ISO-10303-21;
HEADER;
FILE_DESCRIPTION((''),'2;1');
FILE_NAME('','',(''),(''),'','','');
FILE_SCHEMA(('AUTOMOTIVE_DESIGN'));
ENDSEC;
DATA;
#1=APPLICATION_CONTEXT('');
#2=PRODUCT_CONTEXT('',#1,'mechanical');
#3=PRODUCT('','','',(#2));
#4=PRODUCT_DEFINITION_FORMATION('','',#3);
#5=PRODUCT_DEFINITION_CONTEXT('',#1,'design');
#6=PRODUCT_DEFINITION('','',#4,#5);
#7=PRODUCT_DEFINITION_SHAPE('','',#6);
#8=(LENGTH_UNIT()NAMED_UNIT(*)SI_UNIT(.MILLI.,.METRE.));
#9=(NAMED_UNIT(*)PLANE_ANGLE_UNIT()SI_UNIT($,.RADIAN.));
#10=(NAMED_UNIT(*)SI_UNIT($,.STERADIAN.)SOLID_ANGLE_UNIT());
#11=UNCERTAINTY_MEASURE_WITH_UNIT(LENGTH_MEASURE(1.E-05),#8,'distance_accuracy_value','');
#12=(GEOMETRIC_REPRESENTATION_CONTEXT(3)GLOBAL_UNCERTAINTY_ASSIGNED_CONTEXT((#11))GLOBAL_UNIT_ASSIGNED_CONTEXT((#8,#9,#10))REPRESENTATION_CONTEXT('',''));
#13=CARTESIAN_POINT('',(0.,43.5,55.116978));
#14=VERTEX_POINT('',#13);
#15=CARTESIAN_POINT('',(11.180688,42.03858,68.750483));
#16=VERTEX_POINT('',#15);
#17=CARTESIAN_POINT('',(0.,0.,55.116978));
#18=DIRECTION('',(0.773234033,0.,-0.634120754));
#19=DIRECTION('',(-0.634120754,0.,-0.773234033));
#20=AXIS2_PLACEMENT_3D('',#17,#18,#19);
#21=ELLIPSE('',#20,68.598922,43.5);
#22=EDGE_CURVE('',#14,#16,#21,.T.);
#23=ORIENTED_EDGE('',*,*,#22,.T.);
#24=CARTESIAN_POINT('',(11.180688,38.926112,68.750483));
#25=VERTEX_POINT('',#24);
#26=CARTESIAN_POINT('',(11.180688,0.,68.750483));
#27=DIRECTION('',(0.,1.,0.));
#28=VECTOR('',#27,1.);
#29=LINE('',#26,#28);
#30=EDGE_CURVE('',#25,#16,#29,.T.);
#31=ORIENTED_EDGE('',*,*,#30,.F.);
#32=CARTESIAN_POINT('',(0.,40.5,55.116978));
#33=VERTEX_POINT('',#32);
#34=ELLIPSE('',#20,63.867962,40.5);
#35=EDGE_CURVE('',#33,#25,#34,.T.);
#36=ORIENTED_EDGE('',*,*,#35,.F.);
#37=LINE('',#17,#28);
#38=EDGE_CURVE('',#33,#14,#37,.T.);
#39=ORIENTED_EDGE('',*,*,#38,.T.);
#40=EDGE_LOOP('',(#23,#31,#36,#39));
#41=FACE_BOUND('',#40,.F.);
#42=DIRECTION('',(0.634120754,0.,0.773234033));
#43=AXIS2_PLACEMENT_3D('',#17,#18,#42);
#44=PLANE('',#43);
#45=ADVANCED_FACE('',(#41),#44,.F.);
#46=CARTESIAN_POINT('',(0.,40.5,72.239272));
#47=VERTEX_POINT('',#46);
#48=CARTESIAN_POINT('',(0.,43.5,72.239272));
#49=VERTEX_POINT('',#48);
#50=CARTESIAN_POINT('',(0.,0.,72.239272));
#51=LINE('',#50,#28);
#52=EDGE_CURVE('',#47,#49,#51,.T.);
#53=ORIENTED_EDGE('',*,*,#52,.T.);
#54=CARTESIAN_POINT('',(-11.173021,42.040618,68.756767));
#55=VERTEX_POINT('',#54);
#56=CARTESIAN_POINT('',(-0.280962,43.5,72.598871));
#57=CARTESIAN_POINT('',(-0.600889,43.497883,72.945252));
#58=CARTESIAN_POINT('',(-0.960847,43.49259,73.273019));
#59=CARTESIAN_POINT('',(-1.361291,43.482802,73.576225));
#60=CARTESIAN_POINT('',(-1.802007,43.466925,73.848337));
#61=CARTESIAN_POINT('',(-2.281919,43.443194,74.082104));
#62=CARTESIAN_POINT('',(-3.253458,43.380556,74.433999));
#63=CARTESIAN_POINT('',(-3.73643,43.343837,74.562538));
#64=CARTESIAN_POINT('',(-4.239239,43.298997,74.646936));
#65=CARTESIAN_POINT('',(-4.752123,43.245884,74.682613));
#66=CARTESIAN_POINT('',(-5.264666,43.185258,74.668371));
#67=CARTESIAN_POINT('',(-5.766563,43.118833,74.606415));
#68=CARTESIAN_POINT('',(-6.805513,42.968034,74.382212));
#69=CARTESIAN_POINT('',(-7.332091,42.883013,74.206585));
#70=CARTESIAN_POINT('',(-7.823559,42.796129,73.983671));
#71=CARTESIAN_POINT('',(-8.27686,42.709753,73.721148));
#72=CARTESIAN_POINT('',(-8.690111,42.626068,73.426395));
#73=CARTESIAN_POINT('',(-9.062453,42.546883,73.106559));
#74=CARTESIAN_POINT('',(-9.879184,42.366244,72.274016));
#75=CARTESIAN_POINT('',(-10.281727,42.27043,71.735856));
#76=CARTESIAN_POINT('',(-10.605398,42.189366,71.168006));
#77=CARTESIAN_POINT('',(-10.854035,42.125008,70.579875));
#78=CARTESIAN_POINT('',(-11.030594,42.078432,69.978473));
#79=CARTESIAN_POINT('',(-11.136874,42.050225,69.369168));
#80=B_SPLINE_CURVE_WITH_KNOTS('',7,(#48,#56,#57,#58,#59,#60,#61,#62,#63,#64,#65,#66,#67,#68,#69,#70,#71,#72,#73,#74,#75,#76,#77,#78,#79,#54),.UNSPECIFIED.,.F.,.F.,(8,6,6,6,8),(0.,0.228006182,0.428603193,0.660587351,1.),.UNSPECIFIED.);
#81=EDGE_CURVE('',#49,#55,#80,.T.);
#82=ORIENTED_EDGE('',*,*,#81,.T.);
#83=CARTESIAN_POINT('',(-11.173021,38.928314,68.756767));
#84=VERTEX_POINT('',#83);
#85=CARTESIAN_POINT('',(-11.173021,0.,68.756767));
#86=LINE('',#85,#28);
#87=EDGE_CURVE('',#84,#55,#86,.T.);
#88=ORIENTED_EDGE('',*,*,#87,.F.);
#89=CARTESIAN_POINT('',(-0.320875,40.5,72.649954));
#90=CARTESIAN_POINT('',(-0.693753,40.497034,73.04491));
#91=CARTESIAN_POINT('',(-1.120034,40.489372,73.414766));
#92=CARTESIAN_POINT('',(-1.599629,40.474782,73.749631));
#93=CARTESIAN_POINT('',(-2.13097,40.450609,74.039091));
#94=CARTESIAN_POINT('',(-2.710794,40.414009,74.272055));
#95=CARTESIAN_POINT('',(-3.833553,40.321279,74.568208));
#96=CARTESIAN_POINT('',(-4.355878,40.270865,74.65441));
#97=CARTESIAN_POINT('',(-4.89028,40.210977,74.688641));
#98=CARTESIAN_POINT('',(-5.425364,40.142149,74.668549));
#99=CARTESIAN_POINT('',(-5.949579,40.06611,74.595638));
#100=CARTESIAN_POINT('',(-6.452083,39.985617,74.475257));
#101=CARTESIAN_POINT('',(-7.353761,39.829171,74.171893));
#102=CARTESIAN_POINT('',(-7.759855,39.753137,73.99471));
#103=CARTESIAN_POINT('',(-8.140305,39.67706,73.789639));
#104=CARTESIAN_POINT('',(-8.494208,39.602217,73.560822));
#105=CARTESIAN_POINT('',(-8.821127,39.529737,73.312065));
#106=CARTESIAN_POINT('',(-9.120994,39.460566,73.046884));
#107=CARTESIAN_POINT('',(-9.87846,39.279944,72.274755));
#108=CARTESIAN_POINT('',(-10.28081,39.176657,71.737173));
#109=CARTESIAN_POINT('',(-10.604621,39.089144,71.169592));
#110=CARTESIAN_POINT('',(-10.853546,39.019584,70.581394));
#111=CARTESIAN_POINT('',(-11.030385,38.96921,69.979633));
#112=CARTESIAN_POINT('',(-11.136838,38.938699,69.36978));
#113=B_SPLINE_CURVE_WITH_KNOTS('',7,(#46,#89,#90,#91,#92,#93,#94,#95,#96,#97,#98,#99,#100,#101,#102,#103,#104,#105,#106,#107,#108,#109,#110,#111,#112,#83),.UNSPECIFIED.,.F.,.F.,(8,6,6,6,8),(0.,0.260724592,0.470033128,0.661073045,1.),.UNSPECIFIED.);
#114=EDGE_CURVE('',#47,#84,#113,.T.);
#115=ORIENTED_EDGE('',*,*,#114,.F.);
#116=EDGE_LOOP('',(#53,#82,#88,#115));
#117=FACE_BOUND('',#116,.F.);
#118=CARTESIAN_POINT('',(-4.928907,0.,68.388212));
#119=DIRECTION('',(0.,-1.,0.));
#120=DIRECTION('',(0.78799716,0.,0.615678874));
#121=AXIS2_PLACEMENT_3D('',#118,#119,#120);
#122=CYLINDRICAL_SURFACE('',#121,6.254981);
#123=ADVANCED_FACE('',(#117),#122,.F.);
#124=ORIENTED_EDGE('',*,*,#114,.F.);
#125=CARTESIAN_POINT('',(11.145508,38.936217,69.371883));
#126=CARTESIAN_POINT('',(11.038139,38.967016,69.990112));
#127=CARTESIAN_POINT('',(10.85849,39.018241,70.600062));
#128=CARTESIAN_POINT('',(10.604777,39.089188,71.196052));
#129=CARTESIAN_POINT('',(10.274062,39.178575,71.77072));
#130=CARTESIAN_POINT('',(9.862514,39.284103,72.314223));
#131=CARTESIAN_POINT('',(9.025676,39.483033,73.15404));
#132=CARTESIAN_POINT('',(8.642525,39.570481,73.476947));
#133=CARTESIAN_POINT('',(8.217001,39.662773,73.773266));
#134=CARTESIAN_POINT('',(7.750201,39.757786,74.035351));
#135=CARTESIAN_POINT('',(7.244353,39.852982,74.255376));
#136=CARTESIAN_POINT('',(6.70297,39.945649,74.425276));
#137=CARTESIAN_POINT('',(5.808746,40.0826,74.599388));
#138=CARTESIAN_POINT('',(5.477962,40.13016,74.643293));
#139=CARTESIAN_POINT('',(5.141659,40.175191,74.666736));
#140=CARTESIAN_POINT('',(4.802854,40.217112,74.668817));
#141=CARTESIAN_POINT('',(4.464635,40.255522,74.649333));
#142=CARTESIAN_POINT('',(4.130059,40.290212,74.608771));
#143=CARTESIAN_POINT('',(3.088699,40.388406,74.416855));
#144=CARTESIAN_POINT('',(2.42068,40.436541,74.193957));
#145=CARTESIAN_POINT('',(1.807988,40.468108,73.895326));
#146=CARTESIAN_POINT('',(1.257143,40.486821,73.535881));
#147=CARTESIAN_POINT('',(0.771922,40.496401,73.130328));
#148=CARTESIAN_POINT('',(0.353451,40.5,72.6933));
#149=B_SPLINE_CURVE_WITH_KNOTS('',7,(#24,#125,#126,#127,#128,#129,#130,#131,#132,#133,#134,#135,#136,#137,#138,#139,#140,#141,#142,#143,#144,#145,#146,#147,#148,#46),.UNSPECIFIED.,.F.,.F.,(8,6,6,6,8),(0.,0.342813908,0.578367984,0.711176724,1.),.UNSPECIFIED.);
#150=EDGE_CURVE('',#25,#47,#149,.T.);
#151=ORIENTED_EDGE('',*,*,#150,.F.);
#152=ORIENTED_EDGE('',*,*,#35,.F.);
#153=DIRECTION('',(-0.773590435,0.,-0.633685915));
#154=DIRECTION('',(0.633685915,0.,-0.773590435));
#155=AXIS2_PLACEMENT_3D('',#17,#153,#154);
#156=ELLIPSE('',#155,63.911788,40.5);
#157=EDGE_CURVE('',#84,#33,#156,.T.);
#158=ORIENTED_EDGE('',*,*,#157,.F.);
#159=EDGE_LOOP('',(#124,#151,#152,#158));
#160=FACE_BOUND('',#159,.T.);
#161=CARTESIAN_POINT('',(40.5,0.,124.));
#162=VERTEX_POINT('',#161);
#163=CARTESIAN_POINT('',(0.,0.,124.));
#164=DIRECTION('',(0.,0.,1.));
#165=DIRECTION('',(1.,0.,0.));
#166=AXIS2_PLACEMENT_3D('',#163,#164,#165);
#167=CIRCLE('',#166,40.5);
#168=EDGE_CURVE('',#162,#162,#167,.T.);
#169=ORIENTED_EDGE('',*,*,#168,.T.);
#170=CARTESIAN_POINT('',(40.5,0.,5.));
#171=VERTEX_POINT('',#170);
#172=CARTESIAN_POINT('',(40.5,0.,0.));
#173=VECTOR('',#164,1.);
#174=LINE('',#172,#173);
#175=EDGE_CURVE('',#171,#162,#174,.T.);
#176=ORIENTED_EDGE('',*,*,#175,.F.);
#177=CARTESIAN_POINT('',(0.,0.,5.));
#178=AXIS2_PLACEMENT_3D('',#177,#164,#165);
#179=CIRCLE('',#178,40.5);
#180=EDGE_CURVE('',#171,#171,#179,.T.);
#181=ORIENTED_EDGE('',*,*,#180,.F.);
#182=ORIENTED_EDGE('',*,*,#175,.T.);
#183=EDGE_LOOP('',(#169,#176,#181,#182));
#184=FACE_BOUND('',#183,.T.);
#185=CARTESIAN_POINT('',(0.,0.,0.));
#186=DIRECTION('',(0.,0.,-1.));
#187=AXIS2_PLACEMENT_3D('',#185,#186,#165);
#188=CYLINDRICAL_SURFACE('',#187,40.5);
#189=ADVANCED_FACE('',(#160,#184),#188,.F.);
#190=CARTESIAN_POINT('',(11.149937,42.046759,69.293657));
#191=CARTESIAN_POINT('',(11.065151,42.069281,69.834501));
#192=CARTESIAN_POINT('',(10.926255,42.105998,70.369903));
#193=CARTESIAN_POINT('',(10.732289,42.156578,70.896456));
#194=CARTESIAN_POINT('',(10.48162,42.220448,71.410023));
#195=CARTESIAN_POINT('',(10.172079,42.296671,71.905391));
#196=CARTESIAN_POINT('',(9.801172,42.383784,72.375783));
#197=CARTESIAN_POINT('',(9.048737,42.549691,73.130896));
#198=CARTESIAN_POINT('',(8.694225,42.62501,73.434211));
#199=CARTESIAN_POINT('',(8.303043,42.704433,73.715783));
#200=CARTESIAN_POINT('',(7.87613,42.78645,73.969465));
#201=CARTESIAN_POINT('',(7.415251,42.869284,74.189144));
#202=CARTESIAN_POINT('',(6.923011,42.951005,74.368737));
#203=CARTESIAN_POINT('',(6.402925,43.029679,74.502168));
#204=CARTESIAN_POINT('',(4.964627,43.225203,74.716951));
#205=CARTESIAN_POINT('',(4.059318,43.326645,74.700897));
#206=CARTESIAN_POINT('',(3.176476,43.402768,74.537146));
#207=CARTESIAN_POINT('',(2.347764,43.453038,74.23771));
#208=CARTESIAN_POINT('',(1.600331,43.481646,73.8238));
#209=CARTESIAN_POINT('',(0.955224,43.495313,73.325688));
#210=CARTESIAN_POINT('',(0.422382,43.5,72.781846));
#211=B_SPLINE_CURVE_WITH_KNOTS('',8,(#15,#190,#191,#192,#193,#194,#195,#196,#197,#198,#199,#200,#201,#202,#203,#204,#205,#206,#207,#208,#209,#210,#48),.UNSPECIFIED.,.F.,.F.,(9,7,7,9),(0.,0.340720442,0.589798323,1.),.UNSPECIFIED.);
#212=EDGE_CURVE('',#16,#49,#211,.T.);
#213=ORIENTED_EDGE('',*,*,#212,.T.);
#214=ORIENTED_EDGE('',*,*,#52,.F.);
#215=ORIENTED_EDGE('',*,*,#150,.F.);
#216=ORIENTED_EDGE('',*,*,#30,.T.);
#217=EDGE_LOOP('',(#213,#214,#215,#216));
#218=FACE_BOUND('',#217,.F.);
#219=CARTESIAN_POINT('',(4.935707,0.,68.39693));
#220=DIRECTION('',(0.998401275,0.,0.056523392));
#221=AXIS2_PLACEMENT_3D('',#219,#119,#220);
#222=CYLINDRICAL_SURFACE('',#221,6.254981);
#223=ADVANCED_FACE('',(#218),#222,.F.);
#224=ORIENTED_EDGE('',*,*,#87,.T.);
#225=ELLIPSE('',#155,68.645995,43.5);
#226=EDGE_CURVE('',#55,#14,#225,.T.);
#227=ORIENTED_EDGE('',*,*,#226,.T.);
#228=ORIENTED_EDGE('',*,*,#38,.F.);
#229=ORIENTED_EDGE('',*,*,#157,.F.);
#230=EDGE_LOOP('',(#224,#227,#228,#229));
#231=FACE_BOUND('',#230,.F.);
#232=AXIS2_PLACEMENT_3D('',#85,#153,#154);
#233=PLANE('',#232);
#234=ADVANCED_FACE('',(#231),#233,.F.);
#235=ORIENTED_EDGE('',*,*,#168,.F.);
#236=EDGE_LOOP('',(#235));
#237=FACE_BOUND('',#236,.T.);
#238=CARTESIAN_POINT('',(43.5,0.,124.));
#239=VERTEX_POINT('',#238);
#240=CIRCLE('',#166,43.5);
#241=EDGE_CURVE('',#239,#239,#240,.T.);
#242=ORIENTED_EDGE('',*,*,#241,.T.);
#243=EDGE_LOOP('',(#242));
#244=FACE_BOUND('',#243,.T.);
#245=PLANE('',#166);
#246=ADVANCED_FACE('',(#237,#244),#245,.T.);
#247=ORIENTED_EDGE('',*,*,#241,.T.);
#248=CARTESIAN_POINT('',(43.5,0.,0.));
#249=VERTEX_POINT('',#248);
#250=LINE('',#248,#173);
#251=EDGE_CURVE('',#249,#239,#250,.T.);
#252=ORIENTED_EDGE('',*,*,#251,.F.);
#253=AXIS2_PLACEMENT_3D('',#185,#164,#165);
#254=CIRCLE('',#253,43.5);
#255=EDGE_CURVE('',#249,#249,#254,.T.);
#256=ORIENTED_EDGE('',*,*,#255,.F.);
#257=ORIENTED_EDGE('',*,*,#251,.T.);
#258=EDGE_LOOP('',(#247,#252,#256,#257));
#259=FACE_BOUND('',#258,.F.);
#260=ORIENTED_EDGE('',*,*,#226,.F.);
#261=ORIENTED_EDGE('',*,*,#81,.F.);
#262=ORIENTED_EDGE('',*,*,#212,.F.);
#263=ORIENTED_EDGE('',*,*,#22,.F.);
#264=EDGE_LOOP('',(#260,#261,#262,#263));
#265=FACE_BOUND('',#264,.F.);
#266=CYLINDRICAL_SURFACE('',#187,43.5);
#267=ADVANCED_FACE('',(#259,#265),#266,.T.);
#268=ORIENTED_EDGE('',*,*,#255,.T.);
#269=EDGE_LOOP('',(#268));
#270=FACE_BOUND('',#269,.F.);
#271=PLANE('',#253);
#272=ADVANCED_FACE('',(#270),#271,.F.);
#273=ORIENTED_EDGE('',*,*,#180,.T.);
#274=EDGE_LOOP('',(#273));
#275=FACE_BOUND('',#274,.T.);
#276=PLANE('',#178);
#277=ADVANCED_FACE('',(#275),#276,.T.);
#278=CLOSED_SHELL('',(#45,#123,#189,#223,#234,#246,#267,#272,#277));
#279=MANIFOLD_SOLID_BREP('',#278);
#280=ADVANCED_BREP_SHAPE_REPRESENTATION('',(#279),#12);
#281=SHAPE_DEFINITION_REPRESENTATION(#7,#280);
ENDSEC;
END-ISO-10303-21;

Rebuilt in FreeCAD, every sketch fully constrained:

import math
import FreeCAD as App
import Part
import Sketcher
from FreeCAD import Vector
Q = App.Units.Quantity

doc = App.newDocument("Part")
params = doc.addObject("Spreadsheet::Sheet", "Params")
for row, (alias, value) in enumerate([
    ("sketch1_diameter", "87 mm"),
    ("sketch1_diameter2", "81 mm"),
    ("pad1_length", "124 mm"),
    ("sketch2_diameter", "81 mm"),
    ("pad2_length", "5 mm"),
], start=1):
    params.set(f"A{row}", alias)
    params.set(f"B{row}", "=" + value)
    params.setAlias(f"B{row}", alias)

body = doc.addObject("PartDesign::Body", "Body")

# Sketch on XY plane
sketch1 = doc.addObject("Sketcher::SketchObject", "Sketch")
body.addObject(sketch1)
sketch1.AttachmentSupport = (doc.XY_Plane, [""])
sketch1.MapMode = "FlatFace"
sketch1.addGeometry([
    Part.Circle(Vector(0, 0, 0), Vector(0, 0, 1), 44),
    Part.Circle(Vector(0, 0, 0), Vector(0, 0, 1), 40),
], False)
sketch1.addConstraint([
    Sketcher.Constraint("Coincident", 0, 3, -1, 1),
    Sketcher.Constraint("Coincident", 1, 3, -1, 1),
    Sketcher.Constraint("Diameter", 0, Q("87 mm")),
    Sketcher.Constraint("Diameter", 1, Q("81 mm")),
])
sketch1.setExpression("Constraints[2]", "Params.sketch1_diameter")
sketch1.setExpression("Constraints[3]", "Params.sketch1_diameter2")
pad1 = doc.addObject("PartDesign::Pad", "Pad")
body.addObject(pad1)
pad1.Profile = sketch1
pad1.setExpression("Length", "Params.pad1_length")

# Sketch on XY plane
sketch2 = doc.addObject("Sketcher::SketchObject", "Sketch001")
body.addObject(sketch2)
sketch2.AttachmentSupport = (doc.XY_Plane, [""])
sketch2.MapMode = "FlatFace"
sketch2.addGeometry(Part.Circle(Vector(0, 0, 0), Vector(0, 0, 1), 40), False)
sketch2.addConstraint([
    Sketcher.Constraint("Coincident", 0, 3, -1, 1),
    Sketcher.Constraint("Diameter", 0, Q("81 mm")),
])
sketch2.setExpression("Constraints[1]", "Params.sketch2_diameter")
pad2 = doc.addObject("PartDesign::Pad", "Pad001")
body.addObject(pad2)
pad2.Profile = sketch2
pad2.setExpression("Length", "Params.pad2_length")

# Sketch on XZ plane
sketch3 = doc.addObject("Sketcher::SketchObject", "Sketch002")
body.addObject(sketch3)
sketch3.AttachmentSupport = (doc.XZ_Plane, [""])
sketch3.MapMode = "FlatFace"
sketch3.addGeometry([
    Part.LineSegment(Vector(-11, 69, 0), Vector(0, 55, 0)),
    Part.LineSegment(Vector(0, 55, 0), Vector(11, 69, 0)),
    Part.ArcOfCircle(Part.Circle(Vector(5, 68, 0), Vector(0, 0, 1), 6), math.radians(3), math.radians(142)),
    Part.ArcOfCircle(Part.Circle(Vector(-5, 68, 0), Vector(0, 0, 1), 6), math.radians(38), math.radians(177)),
], False)
sketch3.addConstraint([
    Sketcher.Constraint("Coincident", 0, 2, 1, 1),
    Sketcher.Constraint("Coincident", 1, 2, 2, 1),
    Sketcher.Constraint("Coincident", 2, 2, 3, 1),
    Sketcher.Constraint("Coincident", 3, 2, 0, 1),
    Sketcher.Constraint("Equal", 2, 3),
    Sketcher.Constraint("PointOnObject", 0, 2, -2),
    Sketcher.Constraint("PointOnObject", 2, 2, -2),
    Sketcher.Constraint("Equal", 0, 1),
    Sketcher.Constraint("Radius", 2, Q("6.254981 mm")),
    Sketcher.Constraint("DistanceY", -1, 1, 2, 3, Q("68.39693 mm")),
    Sketcher.Constraint("DistanceY", -1, 1, 0, 2, Q("55.116978 mm")),
    Sketcher.Constraint("DistanceY", -1, 1, 2, 2, Q("72.239272 mm")),
    Sketcher.Constraint("DistanceX", 3, 2, -1, 1, Q("11.173021 mm")),
    Sketcher.Constraint("DistanceX", 2, 3, 1, 2, Q("6.244981 mm")),
])
pocket1 = doc.addObject("PartDesign::Pocket", "Pocket")
body.addObject(pocket1)
pocket1.Profile = sketch3
pocket1.Type = "ThroughAll"

doc.recompute()
